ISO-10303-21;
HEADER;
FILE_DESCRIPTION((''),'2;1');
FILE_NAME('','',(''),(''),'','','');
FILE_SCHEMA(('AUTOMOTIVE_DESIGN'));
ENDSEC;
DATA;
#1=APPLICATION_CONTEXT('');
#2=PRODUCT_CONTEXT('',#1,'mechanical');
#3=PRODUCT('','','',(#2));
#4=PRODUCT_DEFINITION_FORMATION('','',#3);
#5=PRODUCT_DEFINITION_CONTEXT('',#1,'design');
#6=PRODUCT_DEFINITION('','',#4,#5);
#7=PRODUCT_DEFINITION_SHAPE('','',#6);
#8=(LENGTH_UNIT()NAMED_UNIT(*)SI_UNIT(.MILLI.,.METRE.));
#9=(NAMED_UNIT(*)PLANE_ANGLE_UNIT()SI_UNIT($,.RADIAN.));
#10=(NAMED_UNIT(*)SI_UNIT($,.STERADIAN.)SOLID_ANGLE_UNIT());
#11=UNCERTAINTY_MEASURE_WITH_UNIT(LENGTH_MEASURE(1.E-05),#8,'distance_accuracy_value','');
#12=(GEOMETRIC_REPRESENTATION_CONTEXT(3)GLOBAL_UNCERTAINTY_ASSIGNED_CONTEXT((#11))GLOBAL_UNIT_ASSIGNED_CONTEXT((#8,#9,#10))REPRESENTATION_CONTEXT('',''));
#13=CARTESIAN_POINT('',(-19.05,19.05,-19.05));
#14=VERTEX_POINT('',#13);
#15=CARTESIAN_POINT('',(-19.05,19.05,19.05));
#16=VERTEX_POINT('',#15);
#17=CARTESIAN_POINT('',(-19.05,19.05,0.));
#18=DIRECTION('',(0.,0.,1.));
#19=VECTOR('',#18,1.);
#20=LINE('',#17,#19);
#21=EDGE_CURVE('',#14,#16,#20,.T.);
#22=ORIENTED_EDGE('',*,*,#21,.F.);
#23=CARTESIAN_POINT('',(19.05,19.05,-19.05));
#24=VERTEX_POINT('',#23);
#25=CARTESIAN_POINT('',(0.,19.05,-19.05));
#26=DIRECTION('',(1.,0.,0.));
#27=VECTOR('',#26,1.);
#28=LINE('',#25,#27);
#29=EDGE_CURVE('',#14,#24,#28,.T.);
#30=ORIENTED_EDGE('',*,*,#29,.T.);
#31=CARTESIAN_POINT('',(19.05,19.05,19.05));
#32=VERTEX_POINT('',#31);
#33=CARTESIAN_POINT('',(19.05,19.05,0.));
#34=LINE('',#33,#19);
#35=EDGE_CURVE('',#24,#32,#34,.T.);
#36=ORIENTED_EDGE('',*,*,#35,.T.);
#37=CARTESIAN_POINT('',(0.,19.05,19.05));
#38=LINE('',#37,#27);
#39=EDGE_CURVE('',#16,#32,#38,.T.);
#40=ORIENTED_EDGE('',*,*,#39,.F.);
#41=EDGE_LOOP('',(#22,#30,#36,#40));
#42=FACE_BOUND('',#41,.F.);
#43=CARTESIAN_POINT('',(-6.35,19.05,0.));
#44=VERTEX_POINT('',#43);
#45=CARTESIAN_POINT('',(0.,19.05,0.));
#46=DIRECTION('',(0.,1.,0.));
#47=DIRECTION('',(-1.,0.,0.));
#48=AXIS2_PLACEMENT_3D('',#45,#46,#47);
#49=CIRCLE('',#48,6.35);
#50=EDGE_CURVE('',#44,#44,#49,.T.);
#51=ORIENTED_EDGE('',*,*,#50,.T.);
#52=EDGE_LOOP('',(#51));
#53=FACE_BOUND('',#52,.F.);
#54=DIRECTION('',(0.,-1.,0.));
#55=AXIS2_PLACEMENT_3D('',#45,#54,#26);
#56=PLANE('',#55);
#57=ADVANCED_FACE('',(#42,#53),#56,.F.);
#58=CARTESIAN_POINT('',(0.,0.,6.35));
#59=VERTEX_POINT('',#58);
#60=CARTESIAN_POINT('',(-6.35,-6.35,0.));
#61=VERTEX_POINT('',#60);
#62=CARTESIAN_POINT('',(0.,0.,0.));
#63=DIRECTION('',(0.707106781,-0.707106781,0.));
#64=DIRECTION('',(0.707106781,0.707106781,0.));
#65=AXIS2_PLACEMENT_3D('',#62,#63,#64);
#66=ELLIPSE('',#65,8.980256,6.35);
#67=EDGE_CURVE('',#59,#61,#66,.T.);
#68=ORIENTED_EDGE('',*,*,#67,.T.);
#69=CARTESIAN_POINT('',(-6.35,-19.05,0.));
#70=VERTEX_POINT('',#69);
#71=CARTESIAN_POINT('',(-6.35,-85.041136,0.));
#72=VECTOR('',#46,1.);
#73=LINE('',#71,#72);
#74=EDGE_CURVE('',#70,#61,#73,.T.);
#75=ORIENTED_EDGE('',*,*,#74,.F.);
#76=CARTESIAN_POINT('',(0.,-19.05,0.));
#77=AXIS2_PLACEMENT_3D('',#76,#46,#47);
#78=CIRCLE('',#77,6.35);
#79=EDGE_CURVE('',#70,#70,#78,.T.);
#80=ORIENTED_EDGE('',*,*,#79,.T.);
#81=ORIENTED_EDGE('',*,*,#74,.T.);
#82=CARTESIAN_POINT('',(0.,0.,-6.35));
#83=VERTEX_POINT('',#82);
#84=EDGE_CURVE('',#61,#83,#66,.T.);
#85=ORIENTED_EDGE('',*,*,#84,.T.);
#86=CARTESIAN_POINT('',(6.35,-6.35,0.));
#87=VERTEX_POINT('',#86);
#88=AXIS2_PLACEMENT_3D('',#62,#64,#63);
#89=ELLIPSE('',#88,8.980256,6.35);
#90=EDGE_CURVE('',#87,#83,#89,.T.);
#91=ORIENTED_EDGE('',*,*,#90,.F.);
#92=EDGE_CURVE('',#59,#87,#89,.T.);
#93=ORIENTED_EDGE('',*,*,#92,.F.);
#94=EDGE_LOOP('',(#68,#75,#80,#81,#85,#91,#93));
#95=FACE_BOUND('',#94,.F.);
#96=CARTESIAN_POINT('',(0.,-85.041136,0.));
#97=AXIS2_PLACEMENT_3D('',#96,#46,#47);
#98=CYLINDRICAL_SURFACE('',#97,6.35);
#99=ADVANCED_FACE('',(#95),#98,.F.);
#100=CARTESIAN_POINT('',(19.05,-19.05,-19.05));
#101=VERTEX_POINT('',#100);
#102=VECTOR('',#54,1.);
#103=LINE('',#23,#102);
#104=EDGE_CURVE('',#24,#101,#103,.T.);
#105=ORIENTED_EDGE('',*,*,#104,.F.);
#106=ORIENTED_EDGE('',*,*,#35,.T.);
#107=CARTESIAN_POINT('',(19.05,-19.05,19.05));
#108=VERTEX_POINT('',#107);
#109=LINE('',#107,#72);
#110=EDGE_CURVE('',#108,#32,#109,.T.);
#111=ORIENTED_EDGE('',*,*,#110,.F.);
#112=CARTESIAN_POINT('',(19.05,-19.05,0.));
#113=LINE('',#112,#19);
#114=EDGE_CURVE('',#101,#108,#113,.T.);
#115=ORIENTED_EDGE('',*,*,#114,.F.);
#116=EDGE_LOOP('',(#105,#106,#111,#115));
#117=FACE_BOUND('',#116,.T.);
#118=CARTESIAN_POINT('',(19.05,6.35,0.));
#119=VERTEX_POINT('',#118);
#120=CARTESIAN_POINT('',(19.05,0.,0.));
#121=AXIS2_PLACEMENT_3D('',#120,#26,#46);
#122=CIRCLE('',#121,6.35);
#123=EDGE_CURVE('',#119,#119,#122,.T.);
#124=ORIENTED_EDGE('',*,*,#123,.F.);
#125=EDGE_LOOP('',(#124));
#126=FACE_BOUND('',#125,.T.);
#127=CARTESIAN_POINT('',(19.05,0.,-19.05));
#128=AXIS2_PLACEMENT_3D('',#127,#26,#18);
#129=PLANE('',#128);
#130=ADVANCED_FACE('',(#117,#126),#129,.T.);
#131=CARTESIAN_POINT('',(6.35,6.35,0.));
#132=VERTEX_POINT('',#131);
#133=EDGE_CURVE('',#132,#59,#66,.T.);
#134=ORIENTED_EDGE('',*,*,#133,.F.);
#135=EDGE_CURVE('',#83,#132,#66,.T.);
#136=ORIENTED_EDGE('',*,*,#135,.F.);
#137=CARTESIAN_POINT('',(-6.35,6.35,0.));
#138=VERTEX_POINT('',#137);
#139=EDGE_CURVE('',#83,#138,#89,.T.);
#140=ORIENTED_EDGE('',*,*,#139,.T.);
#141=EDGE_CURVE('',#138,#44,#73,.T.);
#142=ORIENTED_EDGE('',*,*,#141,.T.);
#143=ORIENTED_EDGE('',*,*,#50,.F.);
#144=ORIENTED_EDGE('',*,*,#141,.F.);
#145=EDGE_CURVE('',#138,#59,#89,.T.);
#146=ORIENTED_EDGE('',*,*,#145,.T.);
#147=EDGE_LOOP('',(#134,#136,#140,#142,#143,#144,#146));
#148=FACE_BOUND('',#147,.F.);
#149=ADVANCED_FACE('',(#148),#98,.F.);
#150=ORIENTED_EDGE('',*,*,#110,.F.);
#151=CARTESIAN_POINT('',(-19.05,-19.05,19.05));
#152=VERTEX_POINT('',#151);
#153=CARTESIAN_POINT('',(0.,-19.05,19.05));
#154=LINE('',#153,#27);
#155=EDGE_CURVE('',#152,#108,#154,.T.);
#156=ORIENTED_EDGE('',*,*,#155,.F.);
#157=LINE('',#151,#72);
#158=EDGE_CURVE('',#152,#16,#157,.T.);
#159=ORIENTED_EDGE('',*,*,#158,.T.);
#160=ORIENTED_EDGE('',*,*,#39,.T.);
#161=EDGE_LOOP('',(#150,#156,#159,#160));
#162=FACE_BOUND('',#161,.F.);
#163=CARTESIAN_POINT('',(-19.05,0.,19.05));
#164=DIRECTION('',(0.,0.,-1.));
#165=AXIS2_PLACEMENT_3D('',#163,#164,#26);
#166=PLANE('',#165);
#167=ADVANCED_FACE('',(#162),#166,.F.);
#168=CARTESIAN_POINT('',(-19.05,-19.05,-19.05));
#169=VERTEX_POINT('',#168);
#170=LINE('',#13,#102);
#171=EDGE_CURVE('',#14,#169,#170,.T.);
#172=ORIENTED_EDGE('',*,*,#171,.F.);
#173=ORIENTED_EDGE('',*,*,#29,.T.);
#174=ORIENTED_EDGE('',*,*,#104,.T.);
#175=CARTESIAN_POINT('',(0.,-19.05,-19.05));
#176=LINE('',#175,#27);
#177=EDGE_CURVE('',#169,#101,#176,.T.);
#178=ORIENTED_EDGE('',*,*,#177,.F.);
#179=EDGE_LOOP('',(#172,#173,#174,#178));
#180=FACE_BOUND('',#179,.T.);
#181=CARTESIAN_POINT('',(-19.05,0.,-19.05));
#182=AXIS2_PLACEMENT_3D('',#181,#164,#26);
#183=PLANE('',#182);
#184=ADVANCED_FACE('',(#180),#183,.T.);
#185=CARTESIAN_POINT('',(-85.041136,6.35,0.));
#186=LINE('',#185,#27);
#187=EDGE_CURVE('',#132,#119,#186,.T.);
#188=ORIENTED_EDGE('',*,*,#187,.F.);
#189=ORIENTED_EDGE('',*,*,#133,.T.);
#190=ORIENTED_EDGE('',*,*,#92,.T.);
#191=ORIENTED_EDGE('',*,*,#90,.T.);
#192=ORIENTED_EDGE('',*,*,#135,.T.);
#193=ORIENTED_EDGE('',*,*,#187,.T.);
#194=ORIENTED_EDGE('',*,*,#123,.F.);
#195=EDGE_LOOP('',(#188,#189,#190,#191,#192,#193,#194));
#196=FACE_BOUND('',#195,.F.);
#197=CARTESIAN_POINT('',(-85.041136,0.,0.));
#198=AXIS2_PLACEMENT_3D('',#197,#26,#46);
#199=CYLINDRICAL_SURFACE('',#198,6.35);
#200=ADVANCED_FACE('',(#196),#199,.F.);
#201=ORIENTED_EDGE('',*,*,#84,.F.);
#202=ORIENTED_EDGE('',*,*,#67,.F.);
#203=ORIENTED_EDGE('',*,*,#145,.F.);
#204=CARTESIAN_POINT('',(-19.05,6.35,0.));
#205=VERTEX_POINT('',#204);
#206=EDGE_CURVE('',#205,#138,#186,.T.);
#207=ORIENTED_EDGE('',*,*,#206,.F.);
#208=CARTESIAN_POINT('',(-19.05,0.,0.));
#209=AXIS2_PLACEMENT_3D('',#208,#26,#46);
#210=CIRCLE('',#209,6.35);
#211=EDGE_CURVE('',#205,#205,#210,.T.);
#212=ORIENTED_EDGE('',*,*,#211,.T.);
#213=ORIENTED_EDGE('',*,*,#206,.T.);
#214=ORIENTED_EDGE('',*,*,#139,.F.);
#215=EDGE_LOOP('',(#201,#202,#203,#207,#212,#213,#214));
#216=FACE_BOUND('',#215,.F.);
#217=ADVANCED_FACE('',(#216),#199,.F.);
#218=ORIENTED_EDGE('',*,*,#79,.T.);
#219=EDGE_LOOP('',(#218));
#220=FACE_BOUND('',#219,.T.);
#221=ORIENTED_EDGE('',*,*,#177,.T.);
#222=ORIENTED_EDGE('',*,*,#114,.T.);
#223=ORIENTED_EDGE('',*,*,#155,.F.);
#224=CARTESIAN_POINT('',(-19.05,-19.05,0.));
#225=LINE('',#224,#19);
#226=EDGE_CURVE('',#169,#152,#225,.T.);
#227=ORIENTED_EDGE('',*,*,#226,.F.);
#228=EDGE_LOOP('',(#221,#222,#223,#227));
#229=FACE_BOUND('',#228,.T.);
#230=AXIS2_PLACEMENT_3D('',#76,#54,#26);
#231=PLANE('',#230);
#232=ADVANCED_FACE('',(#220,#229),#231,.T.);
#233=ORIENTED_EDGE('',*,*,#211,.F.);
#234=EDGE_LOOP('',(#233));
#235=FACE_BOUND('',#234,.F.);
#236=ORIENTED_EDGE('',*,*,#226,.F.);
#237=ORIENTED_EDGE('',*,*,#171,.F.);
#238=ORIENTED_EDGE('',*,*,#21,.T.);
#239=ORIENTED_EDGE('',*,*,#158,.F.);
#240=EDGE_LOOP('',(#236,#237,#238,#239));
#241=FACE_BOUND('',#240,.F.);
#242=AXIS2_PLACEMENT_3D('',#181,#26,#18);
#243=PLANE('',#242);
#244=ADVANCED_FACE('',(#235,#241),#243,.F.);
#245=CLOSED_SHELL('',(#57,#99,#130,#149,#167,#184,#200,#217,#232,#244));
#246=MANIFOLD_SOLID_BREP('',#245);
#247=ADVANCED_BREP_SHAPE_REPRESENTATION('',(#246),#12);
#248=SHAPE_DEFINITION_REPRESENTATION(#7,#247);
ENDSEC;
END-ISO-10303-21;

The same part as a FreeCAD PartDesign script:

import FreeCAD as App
import Part
import Sketcher

V = App.Vector
Q = App.Units.Quantity


def add_polygon(sketch, points):
    """Adds a closed chain of lines whose ends are joined by coincident constraints."""
    first, n = sketch.GeometryCount, len(points)
    for a, b in zip(points, points[1:] + points[:1]):
        sketch.addGeometry(Part.LineSegment(App.Vector(*a, 0), App.Vector(*b, 0)), False)
    for i in range(n):
        sketch.addConstraint(Sketcher.Constraint("Coincident", first + i, 2, first + (i + 1) % n, 1))

doc = App.newDocument("Part")
params = doc.addObject("Spreadsheet::Sheet", "Params")
for row, (alias, value) in enumerate([
    ("sketch1_width", "1.5 in"),
    ("pad1_length", "1.5 in"),
    ("sketch2_diameter", "0.5 in"),
    ("hole_diameter", "0.5 in"),
    ("sketch3_diameter", "0.5 in"),
    ("hole2_diameter", "0.5 in"),
], start=1):
    params.set(f"A{row}", alias)
    params.set(f"B{row}", "=" + value)
    params.setAlias(f"B{row}", alias)

body = doc.addObject("PartDesign::Body", "Body")

sketch1 = doc.addObject("Sketcher::SketchObject", "Sketch")
body.addObject(sketch1)
sketch1.AttachmentSupport = (doc.XZ_Plane, [""])
sketch1.MapMode = "FlatFace"
add_polygon(sketch1, [(-19.05, 19.05), (-19.05, -19.05), (19.05, -19.05), (19.05, 19.05)])
sketch1.addConstraint(Sketcher.Constraint("Vertical", 0))
sketch1.addConstraint(Sketcher.Constraint("Horizontal", 1))
sketch1.addConstraint(Sketcher.Constraint("Vertical", 2))
sketch1.addConstraint(Sketcher.Constraint("Horizontal", 3))
sketch1.addConstraint(Sketcher.Constraint("Symmetric", 0, 2, 2, 2, -1, 1))
sketch1.addConstraint(Sketcher.Constraint("Equal", 3, 0))
sketch1.addConstraint(Sketcher.Constraint("DistanceX", 1, 1, 1, 2, Q("1.5 in")))
sketch1.setExpression("Constraints[10]", "Params.sketch1_width")
pad1 = doc.addObject("PartDesign::Pad", "Pad")
body.addObject(pad1)
pad1.Profile = sketch1
pad1.setExpression("Length", "Params.pad1_length")
pad1.Midplane = True

sketch2 = doc.addObject("Sketcher::SketchObject", "Sketch001")
body.addObject(sketch2)
sketch2.AttachmentSupport = (doc.YZ_Plane, [""])
sketch2.MapMode = "FlatFace"
sketch2.AttachmentOffset = App.Placement(V(0, 0, -0.75 * 25.4), App.Rotation())
sketch2.addGeometry(Part.Circle(V(0, 0, 0), V(0, 0, 1), 6.35), False)
sketch2.addConstraint(Sketcher.Constraint("Coincident", 0, 3, -1, 1))
sketch2.addConstraint(Sketcher.Constraint("Diameter", 0, Q("0.5 in")))
sketch2.setExpression("Constraints[1]", "Params.sketch2_diameter")
doc.recompute()
hole = doc.addObject("PartDesign::Hole", "Hole")
body.addObject(hole)
hole.Profile = sketch2
hole.ThreadType = "None"
hole.setExpression("Diameter", "Params.hole_diameter")
hole.DepthType = "ThroughAll"
hole.Reversed = True

sketch3 = doc.addObject("Sketcher::SketchObject", "Sketch002")
body.addObject(sketch3)
sketch3.AttachmentSupport = (doc.XZ_Plane, [""])
sketch3.MapMode = "FlatFace"
sketch3.AttachmentOffset = App.Placement(V(0, 0, 0.75 * 25.4), App.Rotation())
sketch3.addGeometry(Part.Circle(V(0, 0, 0), V(0, 0, 1), 6.35), False)
sketch3.addConstraint(Sketcher.Constraint("Coincident", 0, 3, -1, 1))
sketch3.addConstraint(Sketcher.Constraint("Diameter", 0, Q("0.5 in")))
sketch3.setExpression("Constraints[1]", "Params.sketch3_diameter")
doc.recompute()
hole2 = doc.addObject("PartDesign::Hole", "Hole001")
body.addObject(hole2)
hole2.Profile = sketch3
hole2.ThreadType = "None"
hole2.setExpression("Diameter", "Params.hole2_diameter")
hole2.DepthType = "ThroughAll"

doc.recompute()
